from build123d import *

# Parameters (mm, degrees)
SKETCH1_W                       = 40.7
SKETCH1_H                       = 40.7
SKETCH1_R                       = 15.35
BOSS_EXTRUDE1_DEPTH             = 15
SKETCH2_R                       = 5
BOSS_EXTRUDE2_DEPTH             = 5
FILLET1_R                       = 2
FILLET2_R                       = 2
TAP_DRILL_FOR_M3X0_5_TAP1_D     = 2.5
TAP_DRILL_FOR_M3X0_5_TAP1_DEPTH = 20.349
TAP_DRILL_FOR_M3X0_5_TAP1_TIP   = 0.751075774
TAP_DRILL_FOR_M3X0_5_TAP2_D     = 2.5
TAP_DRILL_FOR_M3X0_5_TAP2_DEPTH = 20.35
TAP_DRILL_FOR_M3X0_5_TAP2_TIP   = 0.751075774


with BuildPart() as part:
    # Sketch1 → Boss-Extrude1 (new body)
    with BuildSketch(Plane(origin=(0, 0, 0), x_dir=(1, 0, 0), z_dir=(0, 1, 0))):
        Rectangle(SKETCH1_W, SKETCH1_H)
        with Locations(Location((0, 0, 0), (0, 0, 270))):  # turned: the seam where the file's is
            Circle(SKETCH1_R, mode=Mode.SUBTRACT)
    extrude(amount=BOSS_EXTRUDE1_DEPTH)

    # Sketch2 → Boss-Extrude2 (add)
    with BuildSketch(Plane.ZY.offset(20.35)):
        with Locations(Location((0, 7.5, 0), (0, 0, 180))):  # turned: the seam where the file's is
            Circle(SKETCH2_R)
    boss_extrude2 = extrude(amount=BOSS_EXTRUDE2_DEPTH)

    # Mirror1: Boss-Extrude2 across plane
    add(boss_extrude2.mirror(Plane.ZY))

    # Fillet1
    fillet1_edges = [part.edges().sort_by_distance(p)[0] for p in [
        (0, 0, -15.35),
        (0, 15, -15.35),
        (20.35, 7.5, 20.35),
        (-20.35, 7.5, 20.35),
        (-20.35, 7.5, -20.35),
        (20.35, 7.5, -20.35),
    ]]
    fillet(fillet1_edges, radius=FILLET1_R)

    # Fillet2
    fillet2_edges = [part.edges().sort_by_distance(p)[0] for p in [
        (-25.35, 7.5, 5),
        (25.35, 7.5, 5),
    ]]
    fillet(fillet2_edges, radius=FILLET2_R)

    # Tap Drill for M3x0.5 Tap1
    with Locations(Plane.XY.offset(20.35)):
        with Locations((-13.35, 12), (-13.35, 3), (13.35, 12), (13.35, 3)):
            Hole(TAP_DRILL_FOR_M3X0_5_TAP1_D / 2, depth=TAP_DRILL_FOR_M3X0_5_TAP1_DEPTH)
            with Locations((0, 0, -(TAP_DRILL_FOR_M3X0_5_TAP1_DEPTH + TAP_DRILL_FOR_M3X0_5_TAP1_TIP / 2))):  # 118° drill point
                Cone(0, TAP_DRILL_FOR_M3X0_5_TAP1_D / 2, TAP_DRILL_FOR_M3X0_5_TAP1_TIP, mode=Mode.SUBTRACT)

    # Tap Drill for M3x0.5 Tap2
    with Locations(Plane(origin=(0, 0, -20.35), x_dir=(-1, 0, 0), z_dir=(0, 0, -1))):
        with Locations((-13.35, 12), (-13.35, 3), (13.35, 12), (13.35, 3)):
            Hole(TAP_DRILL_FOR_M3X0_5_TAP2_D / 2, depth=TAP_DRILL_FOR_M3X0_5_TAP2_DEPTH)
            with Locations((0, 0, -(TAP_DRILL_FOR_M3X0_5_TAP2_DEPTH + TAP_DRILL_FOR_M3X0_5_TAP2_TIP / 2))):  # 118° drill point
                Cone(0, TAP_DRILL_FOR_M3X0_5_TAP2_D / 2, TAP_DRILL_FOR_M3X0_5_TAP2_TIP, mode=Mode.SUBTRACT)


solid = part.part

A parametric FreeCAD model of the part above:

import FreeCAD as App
import Part
import Sketcher

V = App.Vector
Q = App.Units.Quantity


def edges_at(feature, points):
    """Names of the edges that pass closest to the given points."""
    edges = feature.Shape.Edges
    near = lambda p: min(range(len(edges)), key=lambda i: edges[i].distToShape(Part.Vertex(*p))[0])
    return sorted({f"Edge{near(p) + 1}" for p in points})


def add_polygon(sketch, points):
    """Adds a closed chain of lines whose ends are joined by coincident constraints."""
    first, n = sketch.GeometryCount, len(points)
    for a, b in zip(points, points[1:] + points[:1]):
        sketch.addGeometry(Part.LineSegment(App.Vector(*a, 0), App.Vector(*b, 0)), False)
    for i in range(n):
        sketch.addConstraint(Sketcher.Constraint("Coincident", first + i, 2, first + (i + 1) % n, 1))

doc = App.newDocument("Part")
body = doc.addObject("PartDesign::Body", "Body")

sketch1 = doc.addObject("Sketcher::SketchObject", "Sketch")
body.addObject(sketch1)
sketch1.AttachmentSupport = (doc.XZ_Plane, [""])
sketch1.MapMode = "FlatFace"
add_polygon(sketch1, [(-20, -20), (-20, 20), (20, 20), (20, -20)])
sketch1.addGeometry(Part.Circle(V(0, 0, 0), V(0, 0, 1), 15), False)
sketch1.addConstraint([
    Sketcher.Constraint("Vertical", 0),
    Sketcher.Constraint("Horizontal", 1),
    Sketcher.Constraint("Vertical", 2),
    Sketcher.Constraint("Horizontal", 3),
    Sketcher.Constraint("Coincident", 4, 3, -1, 1),
    Sketcher.Constraint("Symmetric", 0, 2, 2, 2, -1, 1),
    Sketcher.Constraint("Equal", 3, 0),
    Sketcher.Constraint("Diameter", 4, Q("30.7 mm")),
    Sketcher.Constraint("DistanceX", 1, 1, 1, 2, Q("40.7 mm")),
])
pad1 = doc.addObject("PartDesign::Pad", "Pad")
body.addObject(pad1)
pad1.Profile = sketch1
pad1.Length = 15
pad1.Reversed = True

sketch2 = doc.addObject("Sketcher::SketchObject", "Sketch001")
body.addObject(sketch2)
sketch2.AttachmentSupport = (doc.YZ_Plane, [""])
sketch2.MapMode = "FlatFace"
sketch2.AttachmentOffset = App.Placement(V(0, 0, -20.35), App.Rotation())
sketch2.addGeometry(Part.Circle(V(8, 0, 0), V(0, 0, 1), 5), False)
sketch2.addConstraint([
    Sketcher.Constraint("PointOnObject", 0, 3, -1),
    Sketcher.Constraint("Diameter", 0, Q("10 mm")),
    Sketcher.Constraint("DistanceX", -1, 1, 0, 3, Q("7.5 mm")),
])
pad2 = doc.addObject("PartDesign::Pad", "Pad001")
body.addObject(pad2)
pad2.Profile = sketch2
pad2.Length = 5
pad2.Reversed = True
doc.recompute()

mirrored = doc.addObject("PartDesign::Mirrored", "Mirrored")
body.addObject(mirrored)
mirrored.Originals = [pad2]
mirrored.MirrorPlane = (doc.YZ_Plane, [""])
body.Tip = mirrored
doc.recompute()

fillet = doc.addObject("PartDesign::Fillet", "Fillet")
body.addObject(fillet)
fillet.Base = (mirrored, edges_at(mirrored, [
    (0, 0, -15.35),
    (0, 15, -15.35),
    (20.35, 7.5, 20.35),
    (-20.35, 7.5, 20.35),
    (-20.35, 7.5, -20.35),
    (20.35, 7.5, -20.35),
]))
fillet.Radius = 2
doc.recompute()

fillet2 = doc.addObject("PartDesign::Fillet", "Fillet001")
body.addObject(fillet2)
fillet2.Base = (fillet, edges_at(fillet, [(-25.35, 7.5, 5), (25.35, 7.5, 5)]))
fillet2.Radius = 2

sketch3 = doc.addObject("Sketcher::SketchObject", "Sketch002")
body.addObject(sketch3)
sketch3.AttachmentSupport = (doc.XY_Plane, [""])
sketch3.MapMode = "FlatFace"
sketch3.AttachmentOffset = App.Placement(V(0, 0, 20.35), App.Rotation())
sketch3.addGeometry([
    Part.Circle(V(-13.3, 12, 0), V(0, 0, 1), 1.2),
    Part.Circle(V(-13.3, 3, 0), V(0, 0, 1), 1.2),
    Part.Circle(V(13.3, 12, 0), V(0, 0, 1), 1.2),
    Part.Circle(V(13.3, 3, 0), V(0, 0, 1), 1.2),
], False)
sketch3.addConstraint([
    Sketcher.Constraint("Equal", 0, 1),
    Sketcher.Constraint("Equal", 1, 2),
    Sketcher.Constraint("Equal", 2, 3),
    Sketcher.Constraint("Symmetric", 0, 3, 2, 3, -2),
    Sketcher.Constraint("Symmetric", 1, 3, 3, 3, -2),
    Sketcher.Constraint("Vertical", 0, 3, 1, 3),
    Sketcher.Constraint("Diameter", 0, Q("2.5 mm")),
    Sketcher.Constraint("DistanceY", -1, 1, 0, 3, Q("12 mm")),
    Sketcher.Constraint("DistanceY", -1, 1, 1, 3, Q("3 mm")),
    Sketcher.Constraint("DistanceX", 0, 3, 2, 3, Q("26.7 mm")),
])
doc.recompute()
hole = doc.addObject("PartDesign::Hole", "Hole")
body.addObject(hole)
hole.Profile = sketch3
hole.ThreadType = "None"
hole.Diameter = 2.5
hole.DepthType = "Dimension"
hole.Depth = 20.349
hole.DrillPoint = "Angled"
hole.DrillPointAngle = 118

sketch4 = doc.addObject("Sketcher::SketchObject", "Sketch003")
body.addObject(sketch4)
sketch4.AttachmentSupport = (doc.XY_Plane, [""])
sketch4.MapMode = "FlatFace"
sketch4.AttachmentOffset = App.Placement(V(0, 0, -20.35), App.Rotation())
sketch4.addGeometry([
    Part.Circle(V(13.3, 12, 0), V(0, 0, 1), 1.2),
    Part.Circle(V(13.3, 3, 0), V(0, 0, 1), 1.2),
    Part.Circle(V(-13.3, 12, 0), V(0, 0, 1), 1.2),
    Part.Circle(V(-13.3, 3, 0), V(0, 0, 1), 1.2),
], False)
sketch4.addConstraint([
    Sketcher.Constraint("Equal", 0, 1),
    Sketcher.Constraint("Equal", 1, 2),
    Sketcher.Constraint("Equal", 2, 3),
    Sketcher.Constraint("Symmetric", 0, 3, 2, 3, -2),
    Sketcher.Constraint("Symmetric", 1, 3, 3, 3, -2),
    Sketcher.Constraint("Vertical", 0, 3, 1, 3),
    Sketcher.Constraint("Diameter", 0, Q("2.5 mm")),
    Sketcher.Constraint("DistanceY", -1, 1, 0, 3, Q("12 mm")),
    Sketcher.Constraint("DistanceY", -1, 1, 1, 3, Q("3 mm")),
    Sketcher.Constraint("DistanceX", 2, 3, 0, 3, Q("26.7 mm")),
])
doc.recompute()
hole2 = doc.addObject("PartDesign::Hole", "Hole001")
body.addObject(hole2)
hole2.Profile = sketch4
hole2.ThreadType = "None"
hole2.Diameter = 2.5
hole2.DepthType = "Dimension"
hole2.Depth = 20.35
hole2.DrillPoint = "Angled"
hole2.DrillPointAngle = 118
hole2.Reversed = True

doc.recompute()
